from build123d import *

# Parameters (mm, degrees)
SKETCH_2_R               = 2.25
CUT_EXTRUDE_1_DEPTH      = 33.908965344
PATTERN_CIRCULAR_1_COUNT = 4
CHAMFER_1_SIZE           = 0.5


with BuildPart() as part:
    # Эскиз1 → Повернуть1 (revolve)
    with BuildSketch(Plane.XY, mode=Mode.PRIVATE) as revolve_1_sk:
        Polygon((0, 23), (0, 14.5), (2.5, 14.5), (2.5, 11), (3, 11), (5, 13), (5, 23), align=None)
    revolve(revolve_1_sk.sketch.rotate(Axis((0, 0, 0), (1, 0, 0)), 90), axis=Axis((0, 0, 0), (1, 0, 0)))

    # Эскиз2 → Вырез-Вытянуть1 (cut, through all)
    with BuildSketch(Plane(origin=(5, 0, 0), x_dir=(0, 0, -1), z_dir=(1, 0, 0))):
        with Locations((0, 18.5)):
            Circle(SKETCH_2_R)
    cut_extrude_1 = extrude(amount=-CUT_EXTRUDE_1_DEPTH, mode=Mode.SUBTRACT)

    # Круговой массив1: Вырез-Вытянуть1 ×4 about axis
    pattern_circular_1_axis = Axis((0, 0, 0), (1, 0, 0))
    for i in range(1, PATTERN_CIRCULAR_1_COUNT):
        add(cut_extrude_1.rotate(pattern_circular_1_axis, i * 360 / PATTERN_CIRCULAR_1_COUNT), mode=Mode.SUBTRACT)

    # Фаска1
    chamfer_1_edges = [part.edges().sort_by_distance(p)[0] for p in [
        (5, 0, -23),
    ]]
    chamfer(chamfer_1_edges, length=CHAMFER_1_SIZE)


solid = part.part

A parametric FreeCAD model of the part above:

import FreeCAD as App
import Part
import Sketcher
Q = App.Units.Quantity


def edges_at(feature, points):
    """Names of the edges that pass closest to the given points."""
    edges = feature.Shape.Edges
    near = lambda p: min(range(len(edges)), key=lambda i: edges[i].distToShape(Part.Vertex(*p))[0])
    return sorted({f"Edge{near(p) + 1}" for p in points})

doc = App.newDocument("Part")
body = doc.addObject("PartDesign::Body", "Body")

# Sketch on XY plane
sketch1 = doc.addObject("Sketcher::SketchObject", "Sketch")
body.addObject(sketch1)
sketch1.AttachmentSupport = (doc.XY_Plane, [""])
sketch1.MapMode = "FlatFace"
sketch1.addGeometry(Part.LineSegment(App.Vector(0, 23, 0), App.Vector(0, 14.5, 0)), False)
sketch1.addGeometry(Part.LineSegment(App.Vector(0, 14.5, 0), App.Vector(2.5, 14.5, 0)), False)
sketch1.addGeometry(Part.LineSegment(App.Vector(2.5, 14.5, 0), App.Vector(2.5, 11, 0)), False)
sketch1.addGeometry(Part.LineSegment(App.Vector(2.5, 11, 0), App.Vector(3, 11, 0)), False)
sketch1.addGeometry(Part.LineSegment(App.Vector(3, 11, 0), App.Vector(5, 13, 0)), False)
sketch1.addGeometry(Part.LineSegment(App.Vector(5, 13, 0), App.Vector(5, 23, 0)), False)
sketch1.addGeometry(Part.LineSegment(App.Vector(5, 23, 0), App.Vector(0, 23, 0)), False)
sketch1.addConstraint(Sketcher.Constraint("Coincident", 0, 2, 1, 1))
sketch1.addConstraint(Sketcher.Constraint("Coincident", 1, 2, 2, 1))
sketch1.addConstraint(Sketcher.Constraint("Coincident", 2, 2, 3, 1))
sketch1.addConstraint(Sketcher.Constraint("Coincident", 3, 2, 4, 1))
sketch1.addConstraint(Sketcher.Constraint("Coincident", 4, 2, 5, 1))
sketch1.addConstraint(Sketcher.Constraint("Coincident", 5, 2, 6, 1))
sketch1.addConstraint(Sketcher.Constraint("Coincident", 6, 2, 0, 1))
sketch1.addConstraint(Sketcher.Constraint("Vertical", 0))
sketch1.addConstraint(Sketcher.Constraint("Horizontal", 1))
sketch1.addConstraint(Sketcher.Constraint("Vertical", 2))
sketch1.addConstraint(Sketcher.Constraint("Horizontal", 3))
sketch1.addConstraint(Sketcher.Constraint("Vertical", 5))
sketch1.addConstraint(Sketcher.Constraint("Horizontal", 6))
sketch1.addConstraint(Sketcher.Constraint("PointOnObject", 0, 2, -2))
sketch1.addConstraint(Sketcher.Constraint("DistanceX", 6, 2, 6, 1, Q("5 mm")))
sketch1.addConstraint(Sketcher.Constraint("DistanceY", 5, 1, 5, 2, Q("10 mm")))
sketch1.addConstraint(Sketcher.Constraint("Angle", 4, Q("45 deg")))
sketch1.addConstraint(Sketcher.Constraint("DistanceX", 1, 1, 1, 2, Q("2.5 mm")))
sketch1.addConstraint(Sketcher.Constraint("DistanceX", 3, 1, 3, 2, Q("0.5 mm")))
sketch1.addConstraint(Sketcher.Constraint("DistanceY", 0, 2, 0, 1, Q("8.5 mm")))
sketch1.addConstraint(Sketcher.Constraint("DistanceY", -1, 1, 2, 2, Q("11 mm")))
revolution = doc.addObject("PartDesign::Revolution", "Revolution")
body.addObject(revolution)
revolution.Profile = sketch1
revolution.ReferenceAxis = (sketch1, ["H_Axis"])
revolution.Angle = 360

# Sketch on YZ plane
sketch2 = doc.addObject("Sketcher::SketchObject", "Sketch001")
body.addObject(sketch2)
sketch2.AttachmentSupport = (doc.YZ_Plane, [""])
sketch2.MapMode = "FlatFace"
sketch2.AttachmentOffset = App.Placement(App.Vector(0, 0, 5), App.Rotation())
sketch2.addGeometry(Part.Circle(App.Vector(18.5, 0, 0), App.Vector(0, 0, 1), 2.2), False)
sketch2.addConstraint(Sketcher.Constraint("PointOnObject", 0, 3, -1))
sketch2.addConstraint(Sketcher.Constraint("Diameter", 0, Q("4.5 mm")))
sketch2.addConstraint(Sketcher.Constraint("DistanceX", -1, 1, 0, 3, Q("18.5 mm")))
pocket1 = doc.addObject("PartDesign::Pocket", "Pocket")
body.addObject(pocket1)
pocket1.Profile = sketch2
pocket1.Type = "ThroughAll"
doc.recompute()

polarpattern = doc.addObject("PartDesign::PolarPattern", "PolarPattern")
body.addObject(polarpattern)
polarpattern.Originals = [pocket1]
polarpattern.Axis = (doc.X_Axis, [""])
polarpattern.Angle = 360
polarpattern.Occurrences = 4
body.Tip = polarpattern
doc.recompute()

chamfer = doc.addObject("PartDesign::Chamfer", "Chamfer")
body.addObject(chamfer)
chamfer.Base = (polarpattern, edges_at(polarpattern, [(5, 0, -23)]))
chamfer.Size = 0.5

doc.recompute()
